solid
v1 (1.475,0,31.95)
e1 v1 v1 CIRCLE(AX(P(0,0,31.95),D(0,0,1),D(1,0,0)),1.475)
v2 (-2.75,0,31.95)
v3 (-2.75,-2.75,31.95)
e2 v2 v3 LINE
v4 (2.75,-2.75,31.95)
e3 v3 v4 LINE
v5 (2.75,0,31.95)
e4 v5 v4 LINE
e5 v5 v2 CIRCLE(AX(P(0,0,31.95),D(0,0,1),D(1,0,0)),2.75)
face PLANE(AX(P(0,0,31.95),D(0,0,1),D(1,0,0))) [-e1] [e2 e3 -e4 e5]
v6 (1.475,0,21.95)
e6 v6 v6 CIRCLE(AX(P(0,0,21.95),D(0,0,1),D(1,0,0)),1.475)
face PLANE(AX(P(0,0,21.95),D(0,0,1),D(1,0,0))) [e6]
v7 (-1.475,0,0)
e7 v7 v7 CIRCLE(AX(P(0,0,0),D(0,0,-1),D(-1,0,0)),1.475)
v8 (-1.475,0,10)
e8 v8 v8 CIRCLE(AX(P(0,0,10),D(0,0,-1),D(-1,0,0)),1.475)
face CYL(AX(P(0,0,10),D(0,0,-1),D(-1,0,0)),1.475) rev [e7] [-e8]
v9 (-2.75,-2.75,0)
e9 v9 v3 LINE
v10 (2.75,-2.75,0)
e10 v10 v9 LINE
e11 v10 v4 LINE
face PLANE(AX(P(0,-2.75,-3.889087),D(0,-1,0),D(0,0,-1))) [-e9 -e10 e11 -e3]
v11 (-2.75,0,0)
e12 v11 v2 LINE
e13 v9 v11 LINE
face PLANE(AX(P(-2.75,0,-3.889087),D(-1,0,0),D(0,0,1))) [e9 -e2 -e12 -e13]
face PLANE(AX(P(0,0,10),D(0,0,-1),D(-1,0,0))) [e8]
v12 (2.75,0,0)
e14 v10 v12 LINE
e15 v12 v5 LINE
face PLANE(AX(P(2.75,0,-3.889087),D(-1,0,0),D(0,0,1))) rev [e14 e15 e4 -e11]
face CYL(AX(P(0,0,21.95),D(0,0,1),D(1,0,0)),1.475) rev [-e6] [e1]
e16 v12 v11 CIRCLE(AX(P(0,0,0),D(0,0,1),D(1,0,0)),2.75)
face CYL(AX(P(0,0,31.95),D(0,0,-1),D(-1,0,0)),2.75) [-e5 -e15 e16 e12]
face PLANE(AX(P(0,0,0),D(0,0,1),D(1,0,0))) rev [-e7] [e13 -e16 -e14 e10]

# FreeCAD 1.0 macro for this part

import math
import FreeCAD as App
import Part
import Sketcher

V = App.Vector

doc = App.newDocument("Part")
body = doc.addObject("PartDesign::Body", "Body")

# Sketch on XY plane
sketch1 = body.newObject("Sketcher::SketchObject", "Sketch")
sketch1.AttachmentSupport = (doc.getObject("XY_Plane"), [""])
sketch1.MapMode = "FlatFace"
sketch1.addGeometry(Part.Circle(V(0, 0, 0), V(0, 0, 1), 2.8), False)
sketch1.addGeometry(Part.Circle(V(0, 0, 0), V(0, 0, 1), 1.5), False)
sketch1.addConstraint(Sketcher.Constraint("Coincident", 0, 3, -1, 1))
sketch1.addConstraint(Sketcher.Constraint("Coincident", 1, 3, -1, 1))
sketch1.addConstraint(Sketcher.Constraint("Diameter", 0, 5.5))
sketch1.addConstraint(Sketcher.Constraint("Diameter", 1, 2.95))
pad1 = body.newObject("PartDesign::Pad", "Pad")
pad1.Profile = sketch1
pad1.Length = 31.95

# Sketch on XY plane
sketch2 = body.newObject("Sketcher::SketchObject", "Sketch001")
sketch2.AttachmentSupport = (doc.getObject("XY_Plane"), [""])
sketch2.MapMode = "FlatFace"
sketch2.addGeometry(Part.ArcOfCircle(Part.Circle(V(0, 0, 0), V(0, 0, 1), 2.8), math.radians(-180), math.radians(-90)), False)
sketch2.addGeometry(Part.LineSegment(V(-2.8, 0, 0), V(-2.8, -2.8, 0)), False)
sketch2.addGeometry(Part.LineSegment(V(-2.8, -2.8, 0), V(0, -2.8, 0)), False)
sketch2.addGeometry(Part.LineSegment(V(2.8, -2.8, 0), V(2.8, 0, 0)), False)
sketch2.addGeometry(Part.ArcOfCircle(Part.Circle(V(0, 0, 0), V(0, 0, 1), 2.8), math.radians(-90), math.radians(0)), False)
sketch2.addGeometry(Part.LineSegment(V(0, -2.8, 0), V(2.8, -2.8, 0)), False)
sketch2.addConstraint(Sketcher.Constraint("Tangent", 0, 1, 1, 1))
sketch2.addConstraint(Sketcher.Constraint("Coincident", 1, 2, 2, 1))
sketch2.addConstraint(Sketcher.Constraint("Tangent", 2, 2, 0, 2))
sketch2.addConstraint(Sketcher.Constraint("Tangent", 3, 2, 4, 2))
sketch2.addConstraint(Sketcher.Constraint("Tangent", 4, 1, 5, 1))
sketch2.addConstraint(Sketcher.Constraint("Coincident", 5, 2, 3, 1))
sketch2.addConstraint(Sketcher.Constraint("Vertical", 1))
sketch2.addConstraint(Sketcher.Constraint("Horizontal", 2))
sketch2.addConstraint(Sketcher.Constraint("Vertical", 3))
sketch2.addConstraint(Sketcher.Constraint("Horizontal", 5))
sketch2.addConstraint(Sketcher.Constraint("Coincident", 0, 3, -1, 1))
sketch2.addConstraint(Sketcher.Constraint("Coincident", 4, 3, -1, 1))
sketch2.addConstraint(Sketcher.Constraint("Equal", 0, 4))
sketch2.addConstraint(Sketcher.Constraint("Radius", 0, 2.75))
pad2 = body.newObject("PartDesign::Pad", "Pad001")
pad2.Profile = sketch2
pad2.Length = 31.95

# Sketch on XY plane
sketch3 = body.newObject("Sketcher::SketchObject", "Sketch002")
sketch3.AttachmentSupport = (doc.getObject("XY_Plane"), [""])
sketch3.MapMode = "FlatFace"
sketch3.addGeometry(Part.Circle(V(0, 0, 0), V(0, 0, 1), 1.5), False)
sketch3.addConstraint(Sketcher.Constraint("Coincident", 0, 3, -1, 1))
sketch3.addConstraint(Sketcher.Constraint("Diameter", 0, 2.95))
pad3 = body.newObject("PartDesign::Pad", "Pad002")
pad3.Profile = sketch3
pad3.Length = 31.95

# Sketch on XY plane
sketch4 = body.newObject("Sketcher::SketchObject", "Sketch003")
sketch4.AttachmentSupport = (doc.getObject("XY_Plane"), [""])
sketch4.MapMode = "FlatFace"
sketch4.addGeometry(Part.Circle(V(0, 0, 0), V(0, 0, 1), 1.5), False)
sketch4.addConstraint(Sketcher.Constraint("Coincident", 0, 3, -1, 1))
sketch4.addConstraint(Sketcher.Constraint("Diameter", 0, 2.95))
pocket1 = body.newObject("PartDesign::Pocket", "Pocket")
pocket1.Profile = sketch4
pocket1.Length = 10
pocket1.Reversed = True

# Sketch on XY plane
sketch5 = body.newObject("Sketcher::SketchObject", "Sketch004")
sketch5.AttachmentSupport = (doc.getObject("XY_Plane"), [""])
sketch5.MapMode = "FlatFace"
sketch5.AttachmentOffset = App.Placement(V(0, 0, 21.95), App.Rotation())
sketch5.addGeometry(Part.Circle(V(0, 0, 0), V(0, 0, 1), 1.5), False)
sketch5.addConstraint(Sketcher.Constraint("Coincident", 0, 3, -1, 1))
sketch5.addConstraint(Sketcher.Constraint("Diameter", 0, 2.95))
pocket2 = body.newObject("PartDesign::Pocket", "Pocket001")
pocket2.Profile = sketch5
pocket2.Length = 10
pocket2.Reversed = True

doc.recompute()
